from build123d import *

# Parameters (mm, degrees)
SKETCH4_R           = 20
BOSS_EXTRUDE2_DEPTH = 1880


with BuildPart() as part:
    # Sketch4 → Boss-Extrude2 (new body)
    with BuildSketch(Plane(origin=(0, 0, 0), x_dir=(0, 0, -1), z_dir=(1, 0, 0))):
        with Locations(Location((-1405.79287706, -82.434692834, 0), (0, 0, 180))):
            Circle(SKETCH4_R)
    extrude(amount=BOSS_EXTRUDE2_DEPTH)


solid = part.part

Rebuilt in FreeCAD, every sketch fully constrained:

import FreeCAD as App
import Part
import Sketcher

V = App.Vector

doc = App.newDocument("Part")
body = doc.addObject("PartDesign::Body", "Body")

# Sketch on YZ plane
sketch1 = body.newObject("Sketcher::SketchObject", "Sketch")
sketch1.AttachmentSupport = (doc.getObject("YZ_Plane"), [""])
sketch1.MapMode = "FlatFace"
sketch1.addGeometry(Part.Circle(V(-82, 1406, 0), V(0, 0, 1), 20), False)
sketch1.addConstraint(Sketcher.Constraint("Diameter", 0, 40.0))
sketch1.addConstraint(Sketcher.Constraint("DistanceX", 0, 3, -1, 1, 82.434693))
sketch1.addConstraint(Sketcher.Constraint("DistanceY", -1, 1, 0, 3, 1405.792877))
pad1 = body.newObject("PartDesign::Pad", "Pad")
pad1.Profile = sketch1
pad1.Length = 1880

doc.recompute()
